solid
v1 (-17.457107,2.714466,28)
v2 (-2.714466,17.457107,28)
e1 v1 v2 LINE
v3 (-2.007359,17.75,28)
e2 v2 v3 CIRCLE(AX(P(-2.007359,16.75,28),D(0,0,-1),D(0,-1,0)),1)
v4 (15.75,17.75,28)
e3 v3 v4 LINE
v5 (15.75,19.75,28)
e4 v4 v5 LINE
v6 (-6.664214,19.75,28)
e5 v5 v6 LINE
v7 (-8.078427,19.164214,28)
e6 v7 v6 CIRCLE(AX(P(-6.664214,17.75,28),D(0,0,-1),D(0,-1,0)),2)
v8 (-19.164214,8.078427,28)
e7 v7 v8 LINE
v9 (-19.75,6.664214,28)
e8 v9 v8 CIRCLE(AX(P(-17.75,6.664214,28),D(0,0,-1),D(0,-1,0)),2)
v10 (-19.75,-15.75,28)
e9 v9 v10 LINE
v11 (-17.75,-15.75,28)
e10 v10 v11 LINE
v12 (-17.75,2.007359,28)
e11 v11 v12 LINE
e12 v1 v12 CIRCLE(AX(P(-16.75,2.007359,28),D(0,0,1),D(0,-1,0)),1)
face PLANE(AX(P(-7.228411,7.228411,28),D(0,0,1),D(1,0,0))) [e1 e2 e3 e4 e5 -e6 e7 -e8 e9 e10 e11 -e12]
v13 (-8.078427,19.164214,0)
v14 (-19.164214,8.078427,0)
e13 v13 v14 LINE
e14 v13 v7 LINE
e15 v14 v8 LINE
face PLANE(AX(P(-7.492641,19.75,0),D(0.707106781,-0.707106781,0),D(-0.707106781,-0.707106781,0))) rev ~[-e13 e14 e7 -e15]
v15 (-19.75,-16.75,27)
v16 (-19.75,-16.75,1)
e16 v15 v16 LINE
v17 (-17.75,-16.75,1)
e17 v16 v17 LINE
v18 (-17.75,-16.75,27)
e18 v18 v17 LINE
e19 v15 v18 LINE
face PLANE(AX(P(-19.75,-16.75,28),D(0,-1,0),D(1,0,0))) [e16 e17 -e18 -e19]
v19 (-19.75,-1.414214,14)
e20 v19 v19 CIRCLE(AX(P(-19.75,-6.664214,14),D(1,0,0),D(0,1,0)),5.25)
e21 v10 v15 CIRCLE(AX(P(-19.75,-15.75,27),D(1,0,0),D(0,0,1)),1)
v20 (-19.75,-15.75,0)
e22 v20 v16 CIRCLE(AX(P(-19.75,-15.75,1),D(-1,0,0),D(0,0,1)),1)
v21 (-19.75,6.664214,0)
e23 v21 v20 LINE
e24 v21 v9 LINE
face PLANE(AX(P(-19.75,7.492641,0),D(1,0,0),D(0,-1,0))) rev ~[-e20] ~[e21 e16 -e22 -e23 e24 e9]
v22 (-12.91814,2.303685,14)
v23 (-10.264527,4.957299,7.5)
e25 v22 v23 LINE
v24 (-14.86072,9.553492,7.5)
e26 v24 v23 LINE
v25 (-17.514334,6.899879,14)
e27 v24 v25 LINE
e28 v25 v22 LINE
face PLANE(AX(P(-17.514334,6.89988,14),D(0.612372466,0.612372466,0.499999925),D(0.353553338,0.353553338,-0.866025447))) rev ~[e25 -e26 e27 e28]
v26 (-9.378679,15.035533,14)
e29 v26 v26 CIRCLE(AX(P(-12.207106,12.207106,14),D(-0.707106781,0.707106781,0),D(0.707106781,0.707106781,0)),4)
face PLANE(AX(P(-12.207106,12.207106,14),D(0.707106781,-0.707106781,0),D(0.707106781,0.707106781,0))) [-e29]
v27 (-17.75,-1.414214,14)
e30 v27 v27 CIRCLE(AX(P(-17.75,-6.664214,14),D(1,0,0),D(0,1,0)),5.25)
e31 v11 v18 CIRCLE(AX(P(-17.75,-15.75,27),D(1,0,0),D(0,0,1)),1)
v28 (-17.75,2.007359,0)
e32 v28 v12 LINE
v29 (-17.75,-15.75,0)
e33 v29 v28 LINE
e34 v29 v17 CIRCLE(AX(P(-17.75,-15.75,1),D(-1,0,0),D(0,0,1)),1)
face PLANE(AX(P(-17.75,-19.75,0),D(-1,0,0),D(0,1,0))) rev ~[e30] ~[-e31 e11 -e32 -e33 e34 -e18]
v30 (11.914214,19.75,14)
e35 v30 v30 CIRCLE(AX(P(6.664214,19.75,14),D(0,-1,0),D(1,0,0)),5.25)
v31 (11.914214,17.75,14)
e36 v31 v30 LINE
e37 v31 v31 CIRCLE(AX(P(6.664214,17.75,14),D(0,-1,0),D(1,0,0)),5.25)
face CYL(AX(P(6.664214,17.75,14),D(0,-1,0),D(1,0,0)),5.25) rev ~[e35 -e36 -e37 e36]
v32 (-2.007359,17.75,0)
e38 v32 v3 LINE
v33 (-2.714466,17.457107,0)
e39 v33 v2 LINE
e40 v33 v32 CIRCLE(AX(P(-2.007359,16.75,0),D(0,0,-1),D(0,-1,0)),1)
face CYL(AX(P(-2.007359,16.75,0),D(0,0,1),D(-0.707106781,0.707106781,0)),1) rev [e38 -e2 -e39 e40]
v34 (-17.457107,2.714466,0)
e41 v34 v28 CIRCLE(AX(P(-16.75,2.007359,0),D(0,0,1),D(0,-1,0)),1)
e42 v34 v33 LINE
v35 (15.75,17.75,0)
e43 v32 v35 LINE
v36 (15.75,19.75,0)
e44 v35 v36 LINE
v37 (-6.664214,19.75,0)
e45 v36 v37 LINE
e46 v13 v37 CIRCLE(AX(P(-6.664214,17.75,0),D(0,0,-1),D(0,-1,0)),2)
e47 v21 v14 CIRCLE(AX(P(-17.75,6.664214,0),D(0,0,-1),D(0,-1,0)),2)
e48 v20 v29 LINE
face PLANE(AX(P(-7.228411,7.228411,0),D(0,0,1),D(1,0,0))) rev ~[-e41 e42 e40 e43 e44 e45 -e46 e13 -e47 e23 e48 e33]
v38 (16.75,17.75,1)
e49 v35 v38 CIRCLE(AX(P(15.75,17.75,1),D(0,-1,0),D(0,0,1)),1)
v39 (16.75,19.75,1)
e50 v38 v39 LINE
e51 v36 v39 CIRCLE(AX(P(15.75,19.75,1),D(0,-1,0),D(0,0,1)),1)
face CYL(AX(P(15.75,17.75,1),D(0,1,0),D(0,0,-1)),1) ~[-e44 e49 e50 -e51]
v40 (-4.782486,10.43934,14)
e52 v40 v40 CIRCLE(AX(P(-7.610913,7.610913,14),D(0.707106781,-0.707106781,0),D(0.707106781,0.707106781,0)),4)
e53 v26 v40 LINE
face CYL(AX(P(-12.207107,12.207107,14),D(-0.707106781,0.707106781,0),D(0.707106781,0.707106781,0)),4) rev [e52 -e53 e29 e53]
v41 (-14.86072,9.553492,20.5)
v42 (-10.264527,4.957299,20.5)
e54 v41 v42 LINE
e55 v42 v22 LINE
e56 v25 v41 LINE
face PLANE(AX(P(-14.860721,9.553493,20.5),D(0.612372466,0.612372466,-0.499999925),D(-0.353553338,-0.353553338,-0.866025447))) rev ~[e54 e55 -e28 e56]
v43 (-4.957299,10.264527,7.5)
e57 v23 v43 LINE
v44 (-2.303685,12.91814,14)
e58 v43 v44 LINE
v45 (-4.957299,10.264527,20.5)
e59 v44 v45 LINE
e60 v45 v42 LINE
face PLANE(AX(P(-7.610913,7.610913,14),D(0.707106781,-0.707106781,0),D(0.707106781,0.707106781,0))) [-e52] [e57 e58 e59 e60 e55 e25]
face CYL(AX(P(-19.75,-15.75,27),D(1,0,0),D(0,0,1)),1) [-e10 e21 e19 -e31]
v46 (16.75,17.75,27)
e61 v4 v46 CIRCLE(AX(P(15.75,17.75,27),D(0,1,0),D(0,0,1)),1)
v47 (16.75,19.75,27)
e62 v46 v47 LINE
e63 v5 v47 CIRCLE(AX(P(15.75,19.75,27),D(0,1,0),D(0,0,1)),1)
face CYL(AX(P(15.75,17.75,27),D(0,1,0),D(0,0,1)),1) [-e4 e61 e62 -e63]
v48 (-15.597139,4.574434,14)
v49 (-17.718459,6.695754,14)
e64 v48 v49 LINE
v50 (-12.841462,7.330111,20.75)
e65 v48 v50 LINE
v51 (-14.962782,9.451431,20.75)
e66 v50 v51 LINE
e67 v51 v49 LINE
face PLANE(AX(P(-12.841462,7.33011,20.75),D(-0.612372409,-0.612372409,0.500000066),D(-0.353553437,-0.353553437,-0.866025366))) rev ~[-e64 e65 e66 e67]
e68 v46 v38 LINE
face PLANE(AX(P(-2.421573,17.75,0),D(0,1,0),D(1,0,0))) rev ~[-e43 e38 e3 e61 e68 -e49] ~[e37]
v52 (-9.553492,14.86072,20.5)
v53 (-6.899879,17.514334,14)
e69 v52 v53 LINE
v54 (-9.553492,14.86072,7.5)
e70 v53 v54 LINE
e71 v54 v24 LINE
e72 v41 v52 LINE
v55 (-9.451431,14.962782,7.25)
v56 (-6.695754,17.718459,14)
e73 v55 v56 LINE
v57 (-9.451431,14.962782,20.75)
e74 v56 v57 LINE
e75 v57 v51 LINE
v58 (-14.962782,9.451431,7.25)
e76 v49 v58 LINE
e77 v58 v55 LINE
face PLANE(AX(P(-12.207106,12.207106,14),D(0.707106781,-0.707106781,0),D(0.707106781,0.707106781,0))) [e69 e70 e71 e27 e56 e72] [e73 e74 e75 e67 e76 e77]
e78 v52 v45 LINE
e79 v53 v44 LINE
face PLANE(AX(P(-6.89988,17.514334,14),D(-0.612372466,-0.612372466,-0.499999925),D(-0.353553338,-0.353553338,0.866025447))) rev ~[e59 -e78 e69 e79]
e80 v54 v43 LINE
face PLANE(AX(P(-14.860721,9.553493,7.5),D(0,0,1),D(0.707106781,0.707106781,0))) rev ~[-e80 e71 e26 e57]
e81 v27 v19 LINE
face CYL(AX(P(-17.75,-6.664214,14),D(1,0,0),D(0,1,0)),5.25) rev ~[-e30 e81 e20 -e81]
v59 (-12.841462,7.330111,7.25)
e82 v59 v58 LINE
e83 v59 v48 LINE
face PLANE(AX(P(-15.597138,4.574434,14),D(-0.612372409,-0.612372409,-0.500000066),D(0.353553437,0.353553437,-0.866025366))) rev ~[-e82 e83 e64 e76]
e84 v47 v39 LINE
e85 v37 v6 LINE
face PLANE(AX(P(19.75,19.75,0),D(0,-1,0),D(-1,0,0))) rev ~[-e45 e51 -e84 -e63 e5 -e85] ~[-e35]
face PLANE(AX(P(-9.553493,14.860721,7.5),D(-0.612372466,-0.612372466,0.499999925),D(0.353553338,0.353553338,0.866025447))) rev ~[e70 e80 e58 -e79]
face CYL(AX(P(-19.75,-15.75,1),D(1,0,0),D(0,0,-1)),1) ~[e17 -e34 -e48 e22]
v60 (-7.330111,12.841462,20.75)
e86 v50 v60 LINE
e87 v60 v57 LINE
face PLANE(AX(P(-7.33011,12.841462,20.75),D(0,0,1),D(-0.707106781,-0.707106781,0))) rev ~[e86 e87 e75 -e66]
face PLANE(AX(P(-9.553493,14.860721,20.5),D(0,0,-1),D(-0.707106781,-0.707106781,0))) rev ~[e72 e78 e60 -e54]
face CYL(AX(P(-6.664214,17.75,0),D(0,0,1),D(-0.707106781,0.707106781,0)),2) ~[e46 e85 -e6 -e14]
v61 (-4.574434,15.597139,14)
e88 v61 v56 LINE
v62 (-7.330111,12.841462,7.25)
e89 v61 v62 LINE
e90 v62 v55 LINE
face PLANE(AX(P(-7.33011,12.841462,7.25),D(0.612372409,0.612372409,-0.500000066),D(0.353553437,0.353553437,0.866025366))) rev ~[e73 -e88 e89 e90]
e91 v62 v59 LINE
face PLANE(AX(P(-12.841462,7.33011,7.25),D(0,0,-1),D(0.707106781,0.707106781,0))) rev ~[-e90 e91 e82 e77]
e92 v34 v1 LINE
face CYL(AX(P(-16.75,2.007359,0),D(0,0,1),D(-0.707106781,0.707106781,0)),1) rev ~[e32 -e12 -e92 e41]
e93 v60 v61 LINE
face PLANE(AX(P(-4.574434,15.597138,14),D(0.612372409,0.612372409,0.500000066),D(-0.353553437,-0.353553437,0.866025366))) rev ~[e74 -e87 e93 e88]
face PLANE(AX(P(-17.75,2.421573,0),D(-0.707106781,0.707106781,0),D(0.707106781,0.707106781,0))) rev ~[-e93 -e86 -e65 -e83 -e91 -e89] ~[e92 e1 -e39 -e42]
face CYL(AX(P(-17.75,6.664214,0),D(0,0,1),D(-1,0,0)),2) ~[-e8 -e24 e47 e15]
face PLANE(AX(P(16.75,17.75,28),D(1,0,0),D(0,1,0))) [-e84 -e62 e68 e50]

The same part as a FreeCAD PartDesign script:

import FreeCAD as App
import Part
import Sketcher
from FreeCAD import Vector
Q = App.Units.Quantity


def edges_at(feature, points):
    """Names of the edges that pass closest to the given points."""
    edges = feature.Shape.Edges
    near = lambda p: min(range(len(edges)), key=lambda i: edges[i].distToShape(Part.Vertex(*p))[0])
    return sorted({f"Edge{near(p) + 1}" for p in points})

doc = App.newDocument("Part")
body = doc.addObject("PartDesign::Body", "Body")

# Sketch on XY plane
sketch1 = body.newObject("Sketcher::SketchObject", "Sketch")
sketch1.AttachmentSupport = (doc.getObject("XY_Plane"), [""])
sketch1.MapMode = "FlatFace"
sketch1.addGeometry([
    Part.LineSegment(Vector(-19.75, -19.75, 0), Vector(-17.75, -19.75, 0)),  # 0
    Part.LineSegment(Vector(-17.75, -19.75, 0), Vector(-17.75, 2.421573, 0)),  # 1
    Part.LineSegment(Vector(-17.75, 2.421573, 0), Vector(-2.421573, 17.75, 0)),  # 2
    Part.LineSegment(Vector(-2.421573, 17.75, 0), Vector(19.75, 17.75, 0)),  # 3
    Part.LineSegment(Vector(19.75, 17.75, 0), Vector(19.75, 19.75, 0)),  # 4
    Part.LineSegment(Vector(19.75, 19.75, 0), Vector(-7.492641, 19.75, 0)),  # 5
    Part.LineSegment(Vector(-7.492641, 19.75, 0), Vector(-19.75, 7.492641, 0)),  # 6
    Part.LineSegment(Vector(-19.75, 7.492641, 0), Vector(-19.75, -19.75, 0)),  # 7
], False)
sketch1.addConstraint([
    Sketcher.Constraint("Coincident", 0, 2, 1, 1),
    Sketcher.Constraint("Coincident", 1, 2, 2, 1),
    Sketcher.Constraint("Coincident", 2, 2, 3, 1),
    Sketcher.Constraint("Coincident", 3, 2, 4, 1),
    Sketcher.Constraint("Coincident", 4, 2, 5, 1),
    Sketcher.Constraint("Coincident", 5, 2, 6, 1),
    Sketcher.Constraint("Coincident", 6, 2, 7, 1),
    Sketcher.Constraint("Coincident", 7, 2, 0, 1),
    Sketcher.Constraint("Horizontal", 0),
    Sketcher.Constraint("Vertical", 1),
    Sketcher.Constraint("Horizontal", 3),
    Sketcher.Constraint("Vertical", 4),
    Sketcher.Constraint("Horizontal", 5),
    Sketcher.Constraint("Vertical", 7),
    Sketcher.Constraint("Symmetric", 4, 2, 7, 2, -1, 1),
    Sketcher.Constraint("Parallel", 2, 6),
    Sketcher.Constraint("Equal", 3, 1),
    Sketcher.Constraint("Equal", 0, 4),
    Sketcher.Constraint("Equal", 5, 7),
    Sketcher.Constraint("DistanceX", 0, 1, 0, 2, 2.0),
    Sketcher.Constraint("DistanceY", 0, 2, 2, 2, 37.5),
    Sketcher.Constraint("DistanceX", 5, 2, 5, 1, 27.242641),
    Sketcher.Constraint("Distance", 2, 21.677669),
])
pad1 = body.newObject("PartDesign::Pad", "Pad")
pad1.Profile = sketch1
pad1.Length = 28

# Sketch on XZ plane
sketch2 = body.newObject("Sketcher::SketchObject", "Sketch001")
sketch2.AttachmentSupport = (doc.getObject("XZ_Plane"), [""])
sketch2.MapMode = "FlatFace"
sketch2.AttachmentOffset = App.Placement(Vector(0, 0, -17.75), App.Rotation())
sketch2.addGeometry(Part.Circle(Vector(6.664214, 14, 0), Vector(0, 0, 1), 5.25), False)
sketch2.addConstraint([
    Sketcher.Constraint("Diameter", 0, 10.5),
    Sketcher.Constraint("DistanceY", -1, 1, 0, 3, 14.0),
    Sketcher.Constraint("DistanceX", -1, 1, 0, 3, 6.664214),
])
pocket1 = body.newObject("PartDesign::Pocket", "Pocket")
pocket1.Profile = sketch2
pocket1.Length = 25

# Sketch on an angled plane
sketch3 = body.newObject("Sketcher::SketchObject", "Sketch002")
sketch3.Placement = App.Placement(Vector(-10.085786, 10.085786, 0), App.Rotation(Vector(0.707106781, 0.707106781, 0), Vector(0, 0, 0.999999999), Vector(0.707106781, -0.707106781, 0), "ZXY"))
sketch3.addGeometry([
    Part.LineSegment(Vector(-3.897114, 7.25, 0), Vector(3.897114, 7.25, 0)),  # 0
    Part.LineSegment(Vector(3.897114, 7.25, 0), Vector(7.794229, 14, 0)),  # 1
    Part.LineSegment(Vector(7.794229, 14, 0), Vector(3.897114, 20.75, 0)),  # 2
    Part.LineSegment(Vector(3.897114, 20.75, 0), Vector(-3.897114, 20.75, 0)),  # 3
    Part.LineSegment(Vector(-3.897114, 20.75, 0), Vector(-7.794229, 14, 0)),  # 4
    Part.LineSegment(Vector(-7.794229, 14, 0), Vector(-3.897114, 7.25, 0)),  # 5
], False)
sketch3.addConstraint([
    Sketcher.Constraint("Coincident", 0, 2, 1, 1),
    Sketcher.Constraint("Coincident", 1, 2, 2, 1),
    Sketcher.Constraint("Coincident", 2, 2, 3, 1),
    Sketcher.Constraint("Coincident", 3, 2, 4, 1),
    Sketcher.Constraint("Coincident", 4, 2, 5, 1),
    Sketcher.Constraint("Coincident", 5, 2, 0, 1),
    Sketcher.Constraint("Horizontal", 0),
    Sketcher.Constraint("Horizontal", 3),
    Sketcher.Constraint("Symmetric", 1, 2, 4, 2, -2),
    Sketcher.Constraint("Parallel", 1, 4),
    Sketcher.Constraint("Parallel", 2, 5),
    Sketcher.Constraint("Vertical", 0, 2, 2, 2),
    Sketcher.Constraint("Vertical", 3, 2, 5, 2),
    Sketcher.Constraint("Angle", 1, Q("59.999996 deg")),
    Sketcher.Constraint("DistanceY", -1, 1, 1, 2, 14.0),
    Sketcher.Constraint("DistanceY", 0, 2, 2, 2, 13.5),
    Sketcher.Constraint("DistanceX", 0, 1, 0, 2, 7.794228),
])
pocket2 = body.newObject("PartDesign::Pocket", "Pocket001")
pocket2.Profile = sketch3
pocket2.Length = 3

# Sketch on an angled plane
sketch4 = body.newObject("Sketcher::SketchObject", "Sketch003")
sketch4.Placement = App.Placement(Vector(-12.207107, 12.207107, 0), App.Rotation(Vector(0.707106781, 0.707106781, 0), Vector(0, 0, 0.999999999), Vector(0.707106781, -0.707106781, 0), "ZXY"))
sketch4.addGeometry([
    Part.LineSegment(Vector(3.752777, 20.5, 0), Vector(-3.752777, 20.5, 0)),  # 0
    Part.LineSegment(Vector(-3.752777, 20.5, 0), Vector(-7.505553, 14, 0)),  # 1
    Part.LineSegment(Vector(-7.505553, 14, 0), Vector(-3.752777, 7.5, 0)),  # 2
    Part.LineSegment(Vector(-3.752777, 7.5, 0), Vector(3.752777, 7.5, 0)),  # 3
    Part.LineSegment(Vector(3.752777, 7.5, 0), Vector(7.505553, 14, 0)),  # 4
    Part.LineSegment(Vector(7.505553, 14, 0), Vector(3.752777, 20.5, 0)),  # 5
    Part.Circle(Vector(0, 14, 0), Vector(0, 0, 1), 4),  # 6
], False)
sketch4.addConstraint([
    Sketcher.Constraint("Coincident", 0, 2, 1, 1),
    Sketcher.Constraint("Coincident", 1, 2, 2, 1),
    Sketcher.Constraint("Coincident", 2, 2, 3, 1),
    Sketcher.Constraint("Coincident", 3, 2, 4, 1),
    Sketcher.Constraint("Coincident", 4, 2, 5, 1),
    Sketcher.Constraint("Coincident", 5, 2, 0, 1),
    Sketcher.Constraint("Horizontal", 0),
    Sketcher.Constraint("Horizontal", 3),
    Sketcher.Constraint("Symmetric", 1, 2, 4, 2, -2),
    Sketcher.Constraint("PointOnObject", 6, 3, -2),
    Sketcher.Constraint("Parallel", 1, 4),
    Sketcher.Constraint("Parallel", 2, 5),
    Sketcher.Constraint("Horizontal", 6, 3, 1, 2),
    Sketcher.Constraint("Vertical", 0, 2, 2, 2),
    Sketcher.Constraint("Vertical", 3, 2, 5, 2),
    Sketcher.Constraint("Diameter", 6, 8.0),
    Sketcher.Constraint("Angle", 1, Q("-119.999995 deg")),
    Sketcher.Constraint("DistanceY", -1, 1, 6, 3, 14.0),
    Sketcher.Constraint("DistanceY", 2, 2, 0, 2, 13.0),
    Sketcher.Constraint("DistanceX", 0, 2, 0, 1, 7.505554),
])
pad2 = body.newObject("PartDesign::Pad", "Pad001")
pad2.Profile = sketch4
pad2.Length = 6.5

# Sketch on XY plane
sketch5 = body.newObject("Sketcher::SketchObject", "Sketch004")
sketch5.AttachmentSupport = (doc.getObject("XY_Plane"), [""])
sketch5.MapMode = "FlatFace"
sketch5.AttachmentOffset = App.Placement(Vector(0, 0, 28), App.Rotation())
sketch5.addGeometry([
    Part.LineSegment(Vector(-19.75, -16.75, 0), Vector(-19.75, -19.75, 0)),  # 0
    Part.LineSegment(Vector(-19.75, -19.75, 0), Vector(-17.75, -19.75, 0)),  # 1
    Part.LineSegment(Vector(-17.75, -19.75, 0), Vector(-17.75, -16.75, 0)),  # 2
    Part.LineSegment(Vector(-17.75, -16.75, 0), Vector(-19.75, -16.75, 0)),  # 3
    Part.LineSegment(Vector(16.75, 19.75, 0), Vector(16.75, 17.75, 0)),  # 4
    Part.LineSegment(Vector(16.75, 17.75, 0), Vector(19.75, 17.75, 0)),  # 5
    Part.LineSegment(Vector(19.75, 17.75, 0), Vector(19.75, 19.75, 0)),  # 6
    Part.LineSegment(Vector(19.75, 19.75, 0), Vector(16.75, 19.75, 0)),  # 7
], False)
sketch5.addConstraint([
    Sketcher.Constraint("Coincident", 0, 2, 1, 1),
    Sketcher.Constraint("Coincident", 1, 2, 2, 1),
    Sketcher.Constraint("Coincident", 2, 2, 3, 1),
    Sketcher.Constraint("Coincident", 3, 2, 0, 1),
    Sketcher.Constraint("Coincident", 4, 2, 5, 1),
    Sketcher.Constraint("Coincident", 5, 2, 6, 1),
    Sketcher.Constraint("Coincident", 6, 2, 7, 1),
    Sketcher.Constraint("Coincident", 7, 2, 4, 1),
    Sketcher.Constraint("Vertical", 0),
    Sketcher.Constraint("Horizontal", 1),
    Sketcher.Constraint("Vertical", 2),
    Sketcher.Constraint("Horizontal", 3),
    Sketcher.Constraint("Vertical", 4),
    Sketcher.Constraint("Horizontal", 5),
    Sketcher.Constraint("Vertical", 6),
    Sketcher.Constraint("Horizontal", 7),
    Sketcher.Constraint("Symmetric", 0, 2, 6, 2, -1, 1),
    Sketcher.Constraint("Equal", 7, 0),
    Sketcher.Constraint("Equal", 3, 4),
    Sketcher.Constraint("DistanceX", 1, 1, 1, 2, 2.0),
    Sketcher.Constraint("DistanceX", 5, 1, 5, 2, 3.0),
    Sketcher.Constraint("DistanceX", 2, 2, 4, 2, 34.5),
    Sketcher.Constraint("DistanceY", 2, 2, 4, 2, 34.5),
])
pocket3 = body.newObject("PartDesign::Pocket", "Pocket002")
pocket3.Profile = sketch5
pocket3.Type = "ThroughAll"

# Sketch on YZ plane
sketch6 = body.newObject("Sketcher::SketchObject", "Sketch005")
sketch6.AttachmentSupport = (doc.getObject("YZ_Plane"), [""])
sketch6.MapMode = "FlatFace"
sketch6.AttachmentOffset = App.Placement(Vector(0, 0, -17.75), App.Rotation())
sketch6.addGeometry(Part.Circle(Vector(-6.664214, 14, 0), Vector(0, 0, 1), 5.25), False)
sketch6.addConstraint([
    Sketcher.Constraint("Diameter", 0, 10.5),
    Sketcher.Constraint("DistanceY", -1, 1, 0, 3, 14.0),
    Sketcher.Constraint("DistanceX", 0, 3, -1, 1, 6.664214),
])
pocket4 = body.newObject("PartDesign::Pocket", "Pocket003")
pocket4.Profile = sketch6
pocket4.Length = 25
doc.recompute()

fillet = body.newObject("PartDesign::Fillet", "Fillet")
fillet.Base = (pocket4, edges_at(pocket4, [
    (-17.75, 2.422, 14),
    (-2.422, 17.75, 14),
    (16.75, 18.75, 28),
    (16.75, 18.75, 0),
    (-18.75, -16.75, 28),
    (-18.75, -16.75, 0),
]))
fillet.Radius = 1
doc.recompute()

fillet2 = body.newObject("PartDesign::Fillet", "Fillet001")
fillet2.Base = (fillet, edges_at(fillet, [(-19.75, 7.493, 14), (-7.493, 19.75, 14)]))
fillet2.Radius = 2

doc.recompute()
